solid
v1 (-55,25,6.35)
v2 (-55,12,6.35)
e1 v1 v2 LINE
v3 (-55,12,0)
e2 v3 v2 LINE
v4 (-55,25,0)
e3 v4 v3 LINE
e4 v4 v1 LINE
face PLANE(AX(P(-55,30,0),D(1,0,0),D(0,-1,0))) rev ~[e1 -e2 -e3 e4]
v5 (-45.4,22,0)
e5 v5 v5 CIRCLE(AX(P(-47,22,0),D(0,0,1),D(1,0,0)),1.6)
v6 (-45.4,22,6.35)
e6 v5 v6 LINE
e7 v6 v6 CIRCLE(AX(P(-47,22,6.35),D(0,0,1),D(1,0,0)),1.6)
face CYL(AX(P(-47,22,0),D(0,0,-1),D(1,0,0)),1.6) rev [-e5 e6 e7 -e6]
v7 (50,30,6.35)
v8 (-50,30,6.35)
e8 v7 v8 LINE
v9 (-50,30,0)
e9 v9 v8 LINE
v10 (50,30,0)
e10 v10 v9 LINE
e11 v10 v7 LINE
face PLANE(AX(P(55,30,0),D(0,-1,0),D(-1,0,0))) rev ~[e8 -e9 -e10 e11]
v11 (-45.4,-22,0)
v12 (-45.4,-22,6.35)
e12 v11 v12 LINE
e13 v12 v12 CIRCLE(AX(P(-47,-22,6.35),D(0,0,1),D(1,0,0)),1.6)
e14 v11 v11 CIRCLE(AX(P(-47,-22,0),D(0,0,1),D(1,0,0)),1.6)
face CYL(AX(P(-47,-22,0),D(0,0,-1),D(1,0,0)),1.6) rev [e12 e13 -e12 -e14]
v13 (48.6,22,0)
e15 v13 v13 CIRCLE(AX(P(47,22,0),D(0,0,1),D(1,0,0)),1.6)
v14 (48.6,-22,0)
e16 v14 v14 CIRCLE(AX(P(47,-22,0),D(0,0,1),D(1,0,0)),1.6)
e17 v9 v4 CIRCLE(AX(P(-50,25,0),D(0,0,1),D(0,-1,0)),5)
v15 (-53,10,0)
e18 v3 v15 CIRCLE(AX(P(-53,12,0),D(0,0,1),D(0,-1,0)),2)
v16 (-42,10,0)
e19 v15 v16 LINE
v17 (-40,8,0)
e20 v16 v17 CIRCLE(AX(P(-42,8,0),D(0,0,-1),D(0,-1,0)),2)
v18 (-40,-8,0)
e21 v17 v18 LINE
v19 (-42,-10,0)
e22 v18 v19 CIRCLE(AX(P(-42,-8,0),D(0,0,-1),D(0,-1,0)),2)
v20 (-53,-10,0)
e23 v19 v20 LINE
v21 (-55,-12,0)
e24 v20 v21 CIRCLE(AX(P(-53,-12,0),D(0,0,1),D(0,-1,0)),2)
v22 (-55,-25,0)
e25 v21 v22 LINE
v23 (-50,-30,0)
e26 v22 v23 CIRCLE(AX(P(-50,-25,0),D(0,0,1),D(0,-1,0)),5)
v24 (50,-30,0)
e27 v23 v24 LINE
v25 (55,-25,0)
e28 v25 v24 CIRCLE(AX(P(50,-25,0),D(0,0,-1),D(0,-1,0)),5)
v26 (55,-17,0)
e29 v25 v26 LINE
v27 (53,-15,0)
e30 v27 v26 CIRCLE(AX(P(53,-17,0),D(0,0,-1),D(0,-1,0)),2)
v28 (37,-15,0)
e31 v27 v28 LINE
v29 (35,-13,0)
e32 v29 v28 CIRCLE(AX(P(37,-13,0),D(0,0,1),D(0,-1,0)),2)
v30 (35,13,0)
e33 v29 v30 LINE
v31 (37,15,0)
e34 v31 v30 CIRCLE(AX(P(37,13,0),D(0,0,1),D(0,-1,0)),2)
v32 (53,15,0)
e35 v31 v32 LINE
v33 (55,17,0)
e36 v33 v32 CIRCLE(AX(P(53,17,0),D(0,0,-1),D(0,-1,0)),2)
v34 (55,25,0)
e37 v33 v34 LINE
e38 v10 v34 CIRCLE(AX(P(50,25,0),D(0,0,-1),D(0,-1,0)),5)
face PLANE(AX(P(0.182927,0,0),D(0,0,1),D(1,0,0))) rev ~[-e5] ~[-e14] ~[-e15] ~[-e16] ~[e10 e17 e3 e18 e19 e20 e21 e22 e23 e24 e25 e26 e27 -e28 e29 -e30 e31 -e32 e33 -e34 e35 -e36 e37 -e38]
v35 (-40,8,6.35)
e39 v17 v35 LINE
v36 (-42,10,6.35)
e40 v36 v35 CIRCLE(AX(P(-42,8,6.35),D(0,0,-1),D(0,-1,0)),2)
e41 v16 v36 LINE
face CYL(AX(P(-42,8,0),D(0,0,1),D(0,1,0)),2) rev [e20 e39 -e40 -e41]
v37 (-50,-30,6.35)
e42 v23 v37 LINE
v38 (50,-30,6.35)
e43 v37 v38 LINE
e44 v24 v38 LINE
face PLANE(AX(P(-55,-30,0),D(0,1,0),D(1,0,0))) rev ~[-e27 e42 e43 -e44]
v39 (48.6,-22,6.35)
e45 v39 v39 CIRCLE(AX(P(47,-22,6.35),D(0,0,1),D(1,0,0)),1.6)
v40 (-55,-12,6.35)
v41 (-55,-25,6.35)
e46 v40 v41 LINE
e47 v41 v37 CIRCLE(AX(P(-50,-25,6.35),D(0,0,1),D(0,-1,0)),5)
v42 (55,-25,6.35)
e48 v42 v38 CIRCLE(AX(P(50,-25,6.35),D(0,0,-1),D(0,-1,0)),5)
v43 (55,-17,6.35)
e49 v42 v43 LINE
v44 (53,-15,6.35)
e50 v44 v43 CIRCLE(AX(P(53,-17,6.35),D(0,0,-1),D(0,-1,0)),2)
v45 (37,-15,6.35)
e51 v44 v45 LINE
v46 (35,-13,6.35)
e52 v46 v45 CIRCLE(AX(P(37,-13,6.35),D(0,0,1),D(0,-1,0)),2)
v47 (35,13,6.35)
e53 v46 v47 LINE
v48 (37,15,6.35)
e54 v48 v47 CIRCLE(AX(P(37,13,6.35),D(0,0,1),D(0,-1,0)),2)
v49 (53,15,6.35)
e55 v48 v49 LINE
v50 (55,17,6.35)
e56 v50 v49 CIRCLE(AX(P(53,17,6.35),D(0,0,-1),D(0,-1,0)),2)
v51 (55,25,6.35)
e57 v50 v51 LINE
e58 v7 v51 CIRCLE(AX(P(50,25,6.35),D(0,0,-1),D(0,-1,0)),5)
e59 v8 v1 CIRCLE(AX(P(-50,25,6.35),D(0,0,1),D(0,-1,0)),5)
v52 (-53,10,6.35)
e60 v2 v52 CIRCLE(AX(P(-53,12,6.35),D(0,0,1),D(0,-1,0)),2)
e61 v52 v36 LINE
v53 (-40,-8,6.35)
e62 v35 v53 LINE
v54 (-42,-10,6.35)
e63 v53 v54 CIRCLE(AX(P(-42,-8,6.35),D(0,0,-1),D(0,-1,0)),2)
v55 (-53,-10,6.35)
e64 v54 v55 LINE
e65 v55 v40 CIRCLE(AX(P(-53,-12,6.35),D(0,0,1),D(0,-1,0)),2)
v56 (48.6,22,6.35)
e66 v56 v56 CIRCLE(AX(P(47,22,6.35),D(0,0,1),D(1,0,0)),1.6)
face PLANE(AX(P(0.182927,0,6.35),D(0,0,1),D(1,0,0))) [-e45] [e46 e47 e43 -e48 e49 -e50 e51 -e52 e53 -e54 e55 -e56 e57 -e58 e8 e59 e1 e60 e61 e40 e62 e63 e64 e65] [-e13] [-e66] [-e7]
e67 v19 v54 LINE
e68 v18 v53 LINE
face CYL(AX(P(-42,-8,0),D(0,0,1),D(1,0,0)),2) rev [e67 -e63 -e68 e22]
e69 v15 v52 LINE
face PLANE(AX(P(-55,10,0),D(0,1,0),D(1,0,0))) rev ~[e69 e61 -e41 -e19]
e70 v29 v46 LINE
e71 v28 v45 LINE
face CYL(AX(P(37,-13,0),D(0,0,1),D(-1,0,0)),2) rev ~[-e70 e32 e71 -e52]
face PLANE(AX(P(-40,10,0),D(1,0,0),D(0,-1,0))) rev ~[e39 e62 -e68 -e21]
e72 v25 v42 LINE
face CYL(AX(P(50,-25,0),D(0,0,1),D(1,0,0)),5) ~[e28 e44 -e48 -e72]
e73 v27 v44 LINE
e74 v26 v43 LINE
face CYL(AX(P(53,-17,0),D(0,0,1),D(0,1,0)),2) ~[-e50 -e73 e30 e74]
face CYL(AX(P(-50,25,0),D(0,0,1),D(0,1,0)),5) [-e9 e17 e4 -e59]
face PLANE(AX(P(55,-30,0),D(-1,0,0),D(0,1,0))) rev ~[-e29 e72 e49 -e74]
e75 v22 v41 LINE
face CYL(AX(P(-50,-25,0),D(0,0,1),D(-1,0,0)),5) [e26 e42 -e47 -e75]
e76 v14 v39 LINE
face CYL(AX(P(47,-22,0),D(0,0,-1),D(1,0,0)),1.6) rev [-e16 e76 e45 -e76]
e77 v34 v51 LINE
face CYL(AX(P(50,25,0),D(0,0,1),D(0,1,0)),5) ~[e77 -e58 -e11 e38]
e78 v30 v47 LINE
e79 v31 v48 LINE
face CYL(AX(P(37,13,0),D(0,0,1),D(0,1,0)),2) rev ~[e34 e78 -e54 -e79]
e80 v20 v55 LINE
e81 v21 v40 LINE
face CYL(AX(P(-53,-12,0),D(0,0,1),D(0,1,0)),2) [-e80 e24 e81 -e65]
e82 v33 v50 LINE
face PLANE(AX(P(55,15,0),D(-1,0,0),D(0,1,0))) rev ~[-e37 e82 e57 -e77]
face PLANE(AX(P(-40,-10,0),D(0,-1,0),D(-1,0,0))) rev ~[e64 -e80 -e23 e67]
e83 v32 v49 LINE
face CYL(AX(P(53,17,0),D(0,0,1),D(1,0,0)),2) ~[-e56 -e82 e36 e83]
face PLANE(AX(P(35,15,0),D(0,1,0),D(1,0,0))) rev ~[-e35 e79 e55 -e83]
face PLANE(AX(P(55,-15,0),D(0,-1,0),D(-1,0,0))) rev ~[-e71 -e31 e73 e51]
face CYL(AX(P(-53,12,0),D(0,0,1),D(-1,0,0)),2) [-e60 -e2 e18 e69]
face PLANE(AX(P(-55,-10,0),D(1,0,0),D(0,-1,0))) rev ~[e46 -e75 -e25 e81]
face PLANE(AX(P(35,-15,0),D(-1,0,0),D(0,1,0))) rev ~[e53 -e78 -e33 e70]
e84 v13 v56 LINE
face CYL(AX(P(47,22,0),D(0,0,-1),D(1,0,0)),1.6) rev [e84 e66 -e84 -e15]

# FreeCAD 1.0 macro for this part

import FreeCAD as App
import Part
import Sketcher
from FreeCAD import Vector
Q = App.Units.Quantity


def edges_at(feature, points):
    """Names of the edges that pass closest to the given points."""
    edges = feature.Shape.Edges
    near = lambda p: min(range(len(edges)), key=lambda i: edges[i].distToShape(Part.Vertex(*p))[0])
    return sorted({f"Edge{near(p) + 1}" for p in points})


def add_polygon(sketch, points):
    """Adds a closed chain of lines whose ends are joined by coincident constraints."""
    first, n = sketch.GeometryCount, len(points)
    for a, b in zip(points, points[1:] + points[:1]):
        sketch.addGeometry(Part.LineSegment(App.Vector(*a, 0), App.Vector(*b, 0)), False)
    for i in range(n):
        sketch.addConstraint(Sketcher.Constraint("Coincident", first + i, 2, first + (i + 1) % n, 1))

doc = App.newDocument("Part")
body = doc.addObject("PartDesign::Body", "Body")

# Sketch on XY plane
sketch1 = body.newObject("Sketcher::SketchObject", "Sketch")
sketch1.AttachmentSupport = (doc.getObject("XY_Plane"), [""])
sketch1.MapMode = "FlatFace"
add_polygon(sketch1, [(55, 30), (-55, 30), (-55, 10), (-40, 10), (-40, -10), (-55, -10), (-55, -30), (55, -30), (55, -15), (35, -15), (35, 15), (55, 15)])  # lines 0-11
sketch1.addGeometry(Part.Circle(Vector(-47, -22, 0), Vector(0, 0, 1), 1.6), False)  # 12
sketch1.addGeometry(Part.Circle(Vector(47, -22, 0), Vector(0, 0, 1), 1.6), False)  # 13
sketch1.addGeometry(Part.Circle(Vector(-47, 22, 0), Vector(0, 0, 1), 1.6), False)  # 14
sketch1.addGeometry(Part.Circle(Vector(47, 22, 0), Vector(0, 0, 1), 1.6), False)  # 15
sketch1.addConstraint([
    Sketcher.Constraint("Horizontal", 0),
    Sketcher.Constraint("Vertical", 1),
    Sketcher.Constraint("Horizontal", 2),
    Sketcher.Constraint("Vertical", 3),
    Sketcher.Constraint("Horizontal", 4),
    Sketcher.Constraint("Vertical", 5),
    Sketcher.Constraint("Horizontal", 6),
    Sketcher.Constraint("Vertical", 7),
    Sketcher.Constraint("Horizontal", 8),
    Sketcher.Constraint("Vertical", 9),
    Sketcher.Constraint("Horizontal", 10),
    Sketcher.Constraint("Vertical", 11),
    Sketcher.Constraint("Equal", 12, 13),
    Sketcher.Constraint("Equal", 13, 14),
    Sketcher.Constraint("Equal", 14, 15),
    Sketcher.Constraint("Symmetric", 13, 3, 14, 3, -1, 1),
    Sketcher.Constraint("Symmetric", 12, 3, 15, 3, -1, 1),
    Sketcher.Constraint("Symmetric", 0, 2, 6, 2, -1, 1),
    Sketcher.Constraint("Symmetric", 12, 3, 13, 3, -2),
    Sketcher.Constraint("Symmetric", 1, 2, 4, 2, -1),
    Sketcher.Constraint("Symmetric", 7, 2, 10, 2, -1),
    Sketcher.Constraint("Equal", 10, 1),
    Sketcher.Constraint("Equal", 1, 3),
    Sketcher.Constraint("Equal", 4, 7),
    Sketcher.Constraint("Diameter", 12, Q("3.2 mm")),
    Sketcher.Constraint("DistanceX", 0, 2, 0, 1, Q("110 mm")),
    Sketcher.Constraint("DistanceX", 2, 1, 2, 2, Q("15 mm")),
    Sketcher.Constraint("DistanceX", 8, 2, 8, 1, Q("20 mm")),
    Sketcher.Constraint("DistanceX", 12, 3, -1, 1, Q("47 mm")),
    Sketcher.Constraint("DistanceY", 12, 3, -1, 1, Q("22 mm")),
])
pad1 = body.newObject("PartDesign::Pad", "Pad")
pad1.Profile = sketch1
pad1.Length = 6.35
doc.recompute()

fillet = body.newObject("PartDesign::Fillet", "Fillet")
fillet.Base = (pad1, edges_at(pad1, [
    (-55, 30, 3.175),
    (55, 30, 3.175),
    (55, -30, 3.175),
    (-55, -30, 3.175),
]))
fillet.Radius = 5
doc.recompute()

fillet2 = body.newObject("PartDesign::Fillet", "Fillet001")
fillet2.Base = (fillet, edges_at(fillet, [
    (-55, -10, 3.175),
    (-40, -10, 3.175),
    (-55, 10, 3.175),
    (-40, 10, 3.175),
    (35, -15, 3.175),
    (55, -15, 3.175),
    (55, 15, 3.175),
    (35, 15, 3.175),
]))
fillet2.Radius = 2

doc.recompute()
